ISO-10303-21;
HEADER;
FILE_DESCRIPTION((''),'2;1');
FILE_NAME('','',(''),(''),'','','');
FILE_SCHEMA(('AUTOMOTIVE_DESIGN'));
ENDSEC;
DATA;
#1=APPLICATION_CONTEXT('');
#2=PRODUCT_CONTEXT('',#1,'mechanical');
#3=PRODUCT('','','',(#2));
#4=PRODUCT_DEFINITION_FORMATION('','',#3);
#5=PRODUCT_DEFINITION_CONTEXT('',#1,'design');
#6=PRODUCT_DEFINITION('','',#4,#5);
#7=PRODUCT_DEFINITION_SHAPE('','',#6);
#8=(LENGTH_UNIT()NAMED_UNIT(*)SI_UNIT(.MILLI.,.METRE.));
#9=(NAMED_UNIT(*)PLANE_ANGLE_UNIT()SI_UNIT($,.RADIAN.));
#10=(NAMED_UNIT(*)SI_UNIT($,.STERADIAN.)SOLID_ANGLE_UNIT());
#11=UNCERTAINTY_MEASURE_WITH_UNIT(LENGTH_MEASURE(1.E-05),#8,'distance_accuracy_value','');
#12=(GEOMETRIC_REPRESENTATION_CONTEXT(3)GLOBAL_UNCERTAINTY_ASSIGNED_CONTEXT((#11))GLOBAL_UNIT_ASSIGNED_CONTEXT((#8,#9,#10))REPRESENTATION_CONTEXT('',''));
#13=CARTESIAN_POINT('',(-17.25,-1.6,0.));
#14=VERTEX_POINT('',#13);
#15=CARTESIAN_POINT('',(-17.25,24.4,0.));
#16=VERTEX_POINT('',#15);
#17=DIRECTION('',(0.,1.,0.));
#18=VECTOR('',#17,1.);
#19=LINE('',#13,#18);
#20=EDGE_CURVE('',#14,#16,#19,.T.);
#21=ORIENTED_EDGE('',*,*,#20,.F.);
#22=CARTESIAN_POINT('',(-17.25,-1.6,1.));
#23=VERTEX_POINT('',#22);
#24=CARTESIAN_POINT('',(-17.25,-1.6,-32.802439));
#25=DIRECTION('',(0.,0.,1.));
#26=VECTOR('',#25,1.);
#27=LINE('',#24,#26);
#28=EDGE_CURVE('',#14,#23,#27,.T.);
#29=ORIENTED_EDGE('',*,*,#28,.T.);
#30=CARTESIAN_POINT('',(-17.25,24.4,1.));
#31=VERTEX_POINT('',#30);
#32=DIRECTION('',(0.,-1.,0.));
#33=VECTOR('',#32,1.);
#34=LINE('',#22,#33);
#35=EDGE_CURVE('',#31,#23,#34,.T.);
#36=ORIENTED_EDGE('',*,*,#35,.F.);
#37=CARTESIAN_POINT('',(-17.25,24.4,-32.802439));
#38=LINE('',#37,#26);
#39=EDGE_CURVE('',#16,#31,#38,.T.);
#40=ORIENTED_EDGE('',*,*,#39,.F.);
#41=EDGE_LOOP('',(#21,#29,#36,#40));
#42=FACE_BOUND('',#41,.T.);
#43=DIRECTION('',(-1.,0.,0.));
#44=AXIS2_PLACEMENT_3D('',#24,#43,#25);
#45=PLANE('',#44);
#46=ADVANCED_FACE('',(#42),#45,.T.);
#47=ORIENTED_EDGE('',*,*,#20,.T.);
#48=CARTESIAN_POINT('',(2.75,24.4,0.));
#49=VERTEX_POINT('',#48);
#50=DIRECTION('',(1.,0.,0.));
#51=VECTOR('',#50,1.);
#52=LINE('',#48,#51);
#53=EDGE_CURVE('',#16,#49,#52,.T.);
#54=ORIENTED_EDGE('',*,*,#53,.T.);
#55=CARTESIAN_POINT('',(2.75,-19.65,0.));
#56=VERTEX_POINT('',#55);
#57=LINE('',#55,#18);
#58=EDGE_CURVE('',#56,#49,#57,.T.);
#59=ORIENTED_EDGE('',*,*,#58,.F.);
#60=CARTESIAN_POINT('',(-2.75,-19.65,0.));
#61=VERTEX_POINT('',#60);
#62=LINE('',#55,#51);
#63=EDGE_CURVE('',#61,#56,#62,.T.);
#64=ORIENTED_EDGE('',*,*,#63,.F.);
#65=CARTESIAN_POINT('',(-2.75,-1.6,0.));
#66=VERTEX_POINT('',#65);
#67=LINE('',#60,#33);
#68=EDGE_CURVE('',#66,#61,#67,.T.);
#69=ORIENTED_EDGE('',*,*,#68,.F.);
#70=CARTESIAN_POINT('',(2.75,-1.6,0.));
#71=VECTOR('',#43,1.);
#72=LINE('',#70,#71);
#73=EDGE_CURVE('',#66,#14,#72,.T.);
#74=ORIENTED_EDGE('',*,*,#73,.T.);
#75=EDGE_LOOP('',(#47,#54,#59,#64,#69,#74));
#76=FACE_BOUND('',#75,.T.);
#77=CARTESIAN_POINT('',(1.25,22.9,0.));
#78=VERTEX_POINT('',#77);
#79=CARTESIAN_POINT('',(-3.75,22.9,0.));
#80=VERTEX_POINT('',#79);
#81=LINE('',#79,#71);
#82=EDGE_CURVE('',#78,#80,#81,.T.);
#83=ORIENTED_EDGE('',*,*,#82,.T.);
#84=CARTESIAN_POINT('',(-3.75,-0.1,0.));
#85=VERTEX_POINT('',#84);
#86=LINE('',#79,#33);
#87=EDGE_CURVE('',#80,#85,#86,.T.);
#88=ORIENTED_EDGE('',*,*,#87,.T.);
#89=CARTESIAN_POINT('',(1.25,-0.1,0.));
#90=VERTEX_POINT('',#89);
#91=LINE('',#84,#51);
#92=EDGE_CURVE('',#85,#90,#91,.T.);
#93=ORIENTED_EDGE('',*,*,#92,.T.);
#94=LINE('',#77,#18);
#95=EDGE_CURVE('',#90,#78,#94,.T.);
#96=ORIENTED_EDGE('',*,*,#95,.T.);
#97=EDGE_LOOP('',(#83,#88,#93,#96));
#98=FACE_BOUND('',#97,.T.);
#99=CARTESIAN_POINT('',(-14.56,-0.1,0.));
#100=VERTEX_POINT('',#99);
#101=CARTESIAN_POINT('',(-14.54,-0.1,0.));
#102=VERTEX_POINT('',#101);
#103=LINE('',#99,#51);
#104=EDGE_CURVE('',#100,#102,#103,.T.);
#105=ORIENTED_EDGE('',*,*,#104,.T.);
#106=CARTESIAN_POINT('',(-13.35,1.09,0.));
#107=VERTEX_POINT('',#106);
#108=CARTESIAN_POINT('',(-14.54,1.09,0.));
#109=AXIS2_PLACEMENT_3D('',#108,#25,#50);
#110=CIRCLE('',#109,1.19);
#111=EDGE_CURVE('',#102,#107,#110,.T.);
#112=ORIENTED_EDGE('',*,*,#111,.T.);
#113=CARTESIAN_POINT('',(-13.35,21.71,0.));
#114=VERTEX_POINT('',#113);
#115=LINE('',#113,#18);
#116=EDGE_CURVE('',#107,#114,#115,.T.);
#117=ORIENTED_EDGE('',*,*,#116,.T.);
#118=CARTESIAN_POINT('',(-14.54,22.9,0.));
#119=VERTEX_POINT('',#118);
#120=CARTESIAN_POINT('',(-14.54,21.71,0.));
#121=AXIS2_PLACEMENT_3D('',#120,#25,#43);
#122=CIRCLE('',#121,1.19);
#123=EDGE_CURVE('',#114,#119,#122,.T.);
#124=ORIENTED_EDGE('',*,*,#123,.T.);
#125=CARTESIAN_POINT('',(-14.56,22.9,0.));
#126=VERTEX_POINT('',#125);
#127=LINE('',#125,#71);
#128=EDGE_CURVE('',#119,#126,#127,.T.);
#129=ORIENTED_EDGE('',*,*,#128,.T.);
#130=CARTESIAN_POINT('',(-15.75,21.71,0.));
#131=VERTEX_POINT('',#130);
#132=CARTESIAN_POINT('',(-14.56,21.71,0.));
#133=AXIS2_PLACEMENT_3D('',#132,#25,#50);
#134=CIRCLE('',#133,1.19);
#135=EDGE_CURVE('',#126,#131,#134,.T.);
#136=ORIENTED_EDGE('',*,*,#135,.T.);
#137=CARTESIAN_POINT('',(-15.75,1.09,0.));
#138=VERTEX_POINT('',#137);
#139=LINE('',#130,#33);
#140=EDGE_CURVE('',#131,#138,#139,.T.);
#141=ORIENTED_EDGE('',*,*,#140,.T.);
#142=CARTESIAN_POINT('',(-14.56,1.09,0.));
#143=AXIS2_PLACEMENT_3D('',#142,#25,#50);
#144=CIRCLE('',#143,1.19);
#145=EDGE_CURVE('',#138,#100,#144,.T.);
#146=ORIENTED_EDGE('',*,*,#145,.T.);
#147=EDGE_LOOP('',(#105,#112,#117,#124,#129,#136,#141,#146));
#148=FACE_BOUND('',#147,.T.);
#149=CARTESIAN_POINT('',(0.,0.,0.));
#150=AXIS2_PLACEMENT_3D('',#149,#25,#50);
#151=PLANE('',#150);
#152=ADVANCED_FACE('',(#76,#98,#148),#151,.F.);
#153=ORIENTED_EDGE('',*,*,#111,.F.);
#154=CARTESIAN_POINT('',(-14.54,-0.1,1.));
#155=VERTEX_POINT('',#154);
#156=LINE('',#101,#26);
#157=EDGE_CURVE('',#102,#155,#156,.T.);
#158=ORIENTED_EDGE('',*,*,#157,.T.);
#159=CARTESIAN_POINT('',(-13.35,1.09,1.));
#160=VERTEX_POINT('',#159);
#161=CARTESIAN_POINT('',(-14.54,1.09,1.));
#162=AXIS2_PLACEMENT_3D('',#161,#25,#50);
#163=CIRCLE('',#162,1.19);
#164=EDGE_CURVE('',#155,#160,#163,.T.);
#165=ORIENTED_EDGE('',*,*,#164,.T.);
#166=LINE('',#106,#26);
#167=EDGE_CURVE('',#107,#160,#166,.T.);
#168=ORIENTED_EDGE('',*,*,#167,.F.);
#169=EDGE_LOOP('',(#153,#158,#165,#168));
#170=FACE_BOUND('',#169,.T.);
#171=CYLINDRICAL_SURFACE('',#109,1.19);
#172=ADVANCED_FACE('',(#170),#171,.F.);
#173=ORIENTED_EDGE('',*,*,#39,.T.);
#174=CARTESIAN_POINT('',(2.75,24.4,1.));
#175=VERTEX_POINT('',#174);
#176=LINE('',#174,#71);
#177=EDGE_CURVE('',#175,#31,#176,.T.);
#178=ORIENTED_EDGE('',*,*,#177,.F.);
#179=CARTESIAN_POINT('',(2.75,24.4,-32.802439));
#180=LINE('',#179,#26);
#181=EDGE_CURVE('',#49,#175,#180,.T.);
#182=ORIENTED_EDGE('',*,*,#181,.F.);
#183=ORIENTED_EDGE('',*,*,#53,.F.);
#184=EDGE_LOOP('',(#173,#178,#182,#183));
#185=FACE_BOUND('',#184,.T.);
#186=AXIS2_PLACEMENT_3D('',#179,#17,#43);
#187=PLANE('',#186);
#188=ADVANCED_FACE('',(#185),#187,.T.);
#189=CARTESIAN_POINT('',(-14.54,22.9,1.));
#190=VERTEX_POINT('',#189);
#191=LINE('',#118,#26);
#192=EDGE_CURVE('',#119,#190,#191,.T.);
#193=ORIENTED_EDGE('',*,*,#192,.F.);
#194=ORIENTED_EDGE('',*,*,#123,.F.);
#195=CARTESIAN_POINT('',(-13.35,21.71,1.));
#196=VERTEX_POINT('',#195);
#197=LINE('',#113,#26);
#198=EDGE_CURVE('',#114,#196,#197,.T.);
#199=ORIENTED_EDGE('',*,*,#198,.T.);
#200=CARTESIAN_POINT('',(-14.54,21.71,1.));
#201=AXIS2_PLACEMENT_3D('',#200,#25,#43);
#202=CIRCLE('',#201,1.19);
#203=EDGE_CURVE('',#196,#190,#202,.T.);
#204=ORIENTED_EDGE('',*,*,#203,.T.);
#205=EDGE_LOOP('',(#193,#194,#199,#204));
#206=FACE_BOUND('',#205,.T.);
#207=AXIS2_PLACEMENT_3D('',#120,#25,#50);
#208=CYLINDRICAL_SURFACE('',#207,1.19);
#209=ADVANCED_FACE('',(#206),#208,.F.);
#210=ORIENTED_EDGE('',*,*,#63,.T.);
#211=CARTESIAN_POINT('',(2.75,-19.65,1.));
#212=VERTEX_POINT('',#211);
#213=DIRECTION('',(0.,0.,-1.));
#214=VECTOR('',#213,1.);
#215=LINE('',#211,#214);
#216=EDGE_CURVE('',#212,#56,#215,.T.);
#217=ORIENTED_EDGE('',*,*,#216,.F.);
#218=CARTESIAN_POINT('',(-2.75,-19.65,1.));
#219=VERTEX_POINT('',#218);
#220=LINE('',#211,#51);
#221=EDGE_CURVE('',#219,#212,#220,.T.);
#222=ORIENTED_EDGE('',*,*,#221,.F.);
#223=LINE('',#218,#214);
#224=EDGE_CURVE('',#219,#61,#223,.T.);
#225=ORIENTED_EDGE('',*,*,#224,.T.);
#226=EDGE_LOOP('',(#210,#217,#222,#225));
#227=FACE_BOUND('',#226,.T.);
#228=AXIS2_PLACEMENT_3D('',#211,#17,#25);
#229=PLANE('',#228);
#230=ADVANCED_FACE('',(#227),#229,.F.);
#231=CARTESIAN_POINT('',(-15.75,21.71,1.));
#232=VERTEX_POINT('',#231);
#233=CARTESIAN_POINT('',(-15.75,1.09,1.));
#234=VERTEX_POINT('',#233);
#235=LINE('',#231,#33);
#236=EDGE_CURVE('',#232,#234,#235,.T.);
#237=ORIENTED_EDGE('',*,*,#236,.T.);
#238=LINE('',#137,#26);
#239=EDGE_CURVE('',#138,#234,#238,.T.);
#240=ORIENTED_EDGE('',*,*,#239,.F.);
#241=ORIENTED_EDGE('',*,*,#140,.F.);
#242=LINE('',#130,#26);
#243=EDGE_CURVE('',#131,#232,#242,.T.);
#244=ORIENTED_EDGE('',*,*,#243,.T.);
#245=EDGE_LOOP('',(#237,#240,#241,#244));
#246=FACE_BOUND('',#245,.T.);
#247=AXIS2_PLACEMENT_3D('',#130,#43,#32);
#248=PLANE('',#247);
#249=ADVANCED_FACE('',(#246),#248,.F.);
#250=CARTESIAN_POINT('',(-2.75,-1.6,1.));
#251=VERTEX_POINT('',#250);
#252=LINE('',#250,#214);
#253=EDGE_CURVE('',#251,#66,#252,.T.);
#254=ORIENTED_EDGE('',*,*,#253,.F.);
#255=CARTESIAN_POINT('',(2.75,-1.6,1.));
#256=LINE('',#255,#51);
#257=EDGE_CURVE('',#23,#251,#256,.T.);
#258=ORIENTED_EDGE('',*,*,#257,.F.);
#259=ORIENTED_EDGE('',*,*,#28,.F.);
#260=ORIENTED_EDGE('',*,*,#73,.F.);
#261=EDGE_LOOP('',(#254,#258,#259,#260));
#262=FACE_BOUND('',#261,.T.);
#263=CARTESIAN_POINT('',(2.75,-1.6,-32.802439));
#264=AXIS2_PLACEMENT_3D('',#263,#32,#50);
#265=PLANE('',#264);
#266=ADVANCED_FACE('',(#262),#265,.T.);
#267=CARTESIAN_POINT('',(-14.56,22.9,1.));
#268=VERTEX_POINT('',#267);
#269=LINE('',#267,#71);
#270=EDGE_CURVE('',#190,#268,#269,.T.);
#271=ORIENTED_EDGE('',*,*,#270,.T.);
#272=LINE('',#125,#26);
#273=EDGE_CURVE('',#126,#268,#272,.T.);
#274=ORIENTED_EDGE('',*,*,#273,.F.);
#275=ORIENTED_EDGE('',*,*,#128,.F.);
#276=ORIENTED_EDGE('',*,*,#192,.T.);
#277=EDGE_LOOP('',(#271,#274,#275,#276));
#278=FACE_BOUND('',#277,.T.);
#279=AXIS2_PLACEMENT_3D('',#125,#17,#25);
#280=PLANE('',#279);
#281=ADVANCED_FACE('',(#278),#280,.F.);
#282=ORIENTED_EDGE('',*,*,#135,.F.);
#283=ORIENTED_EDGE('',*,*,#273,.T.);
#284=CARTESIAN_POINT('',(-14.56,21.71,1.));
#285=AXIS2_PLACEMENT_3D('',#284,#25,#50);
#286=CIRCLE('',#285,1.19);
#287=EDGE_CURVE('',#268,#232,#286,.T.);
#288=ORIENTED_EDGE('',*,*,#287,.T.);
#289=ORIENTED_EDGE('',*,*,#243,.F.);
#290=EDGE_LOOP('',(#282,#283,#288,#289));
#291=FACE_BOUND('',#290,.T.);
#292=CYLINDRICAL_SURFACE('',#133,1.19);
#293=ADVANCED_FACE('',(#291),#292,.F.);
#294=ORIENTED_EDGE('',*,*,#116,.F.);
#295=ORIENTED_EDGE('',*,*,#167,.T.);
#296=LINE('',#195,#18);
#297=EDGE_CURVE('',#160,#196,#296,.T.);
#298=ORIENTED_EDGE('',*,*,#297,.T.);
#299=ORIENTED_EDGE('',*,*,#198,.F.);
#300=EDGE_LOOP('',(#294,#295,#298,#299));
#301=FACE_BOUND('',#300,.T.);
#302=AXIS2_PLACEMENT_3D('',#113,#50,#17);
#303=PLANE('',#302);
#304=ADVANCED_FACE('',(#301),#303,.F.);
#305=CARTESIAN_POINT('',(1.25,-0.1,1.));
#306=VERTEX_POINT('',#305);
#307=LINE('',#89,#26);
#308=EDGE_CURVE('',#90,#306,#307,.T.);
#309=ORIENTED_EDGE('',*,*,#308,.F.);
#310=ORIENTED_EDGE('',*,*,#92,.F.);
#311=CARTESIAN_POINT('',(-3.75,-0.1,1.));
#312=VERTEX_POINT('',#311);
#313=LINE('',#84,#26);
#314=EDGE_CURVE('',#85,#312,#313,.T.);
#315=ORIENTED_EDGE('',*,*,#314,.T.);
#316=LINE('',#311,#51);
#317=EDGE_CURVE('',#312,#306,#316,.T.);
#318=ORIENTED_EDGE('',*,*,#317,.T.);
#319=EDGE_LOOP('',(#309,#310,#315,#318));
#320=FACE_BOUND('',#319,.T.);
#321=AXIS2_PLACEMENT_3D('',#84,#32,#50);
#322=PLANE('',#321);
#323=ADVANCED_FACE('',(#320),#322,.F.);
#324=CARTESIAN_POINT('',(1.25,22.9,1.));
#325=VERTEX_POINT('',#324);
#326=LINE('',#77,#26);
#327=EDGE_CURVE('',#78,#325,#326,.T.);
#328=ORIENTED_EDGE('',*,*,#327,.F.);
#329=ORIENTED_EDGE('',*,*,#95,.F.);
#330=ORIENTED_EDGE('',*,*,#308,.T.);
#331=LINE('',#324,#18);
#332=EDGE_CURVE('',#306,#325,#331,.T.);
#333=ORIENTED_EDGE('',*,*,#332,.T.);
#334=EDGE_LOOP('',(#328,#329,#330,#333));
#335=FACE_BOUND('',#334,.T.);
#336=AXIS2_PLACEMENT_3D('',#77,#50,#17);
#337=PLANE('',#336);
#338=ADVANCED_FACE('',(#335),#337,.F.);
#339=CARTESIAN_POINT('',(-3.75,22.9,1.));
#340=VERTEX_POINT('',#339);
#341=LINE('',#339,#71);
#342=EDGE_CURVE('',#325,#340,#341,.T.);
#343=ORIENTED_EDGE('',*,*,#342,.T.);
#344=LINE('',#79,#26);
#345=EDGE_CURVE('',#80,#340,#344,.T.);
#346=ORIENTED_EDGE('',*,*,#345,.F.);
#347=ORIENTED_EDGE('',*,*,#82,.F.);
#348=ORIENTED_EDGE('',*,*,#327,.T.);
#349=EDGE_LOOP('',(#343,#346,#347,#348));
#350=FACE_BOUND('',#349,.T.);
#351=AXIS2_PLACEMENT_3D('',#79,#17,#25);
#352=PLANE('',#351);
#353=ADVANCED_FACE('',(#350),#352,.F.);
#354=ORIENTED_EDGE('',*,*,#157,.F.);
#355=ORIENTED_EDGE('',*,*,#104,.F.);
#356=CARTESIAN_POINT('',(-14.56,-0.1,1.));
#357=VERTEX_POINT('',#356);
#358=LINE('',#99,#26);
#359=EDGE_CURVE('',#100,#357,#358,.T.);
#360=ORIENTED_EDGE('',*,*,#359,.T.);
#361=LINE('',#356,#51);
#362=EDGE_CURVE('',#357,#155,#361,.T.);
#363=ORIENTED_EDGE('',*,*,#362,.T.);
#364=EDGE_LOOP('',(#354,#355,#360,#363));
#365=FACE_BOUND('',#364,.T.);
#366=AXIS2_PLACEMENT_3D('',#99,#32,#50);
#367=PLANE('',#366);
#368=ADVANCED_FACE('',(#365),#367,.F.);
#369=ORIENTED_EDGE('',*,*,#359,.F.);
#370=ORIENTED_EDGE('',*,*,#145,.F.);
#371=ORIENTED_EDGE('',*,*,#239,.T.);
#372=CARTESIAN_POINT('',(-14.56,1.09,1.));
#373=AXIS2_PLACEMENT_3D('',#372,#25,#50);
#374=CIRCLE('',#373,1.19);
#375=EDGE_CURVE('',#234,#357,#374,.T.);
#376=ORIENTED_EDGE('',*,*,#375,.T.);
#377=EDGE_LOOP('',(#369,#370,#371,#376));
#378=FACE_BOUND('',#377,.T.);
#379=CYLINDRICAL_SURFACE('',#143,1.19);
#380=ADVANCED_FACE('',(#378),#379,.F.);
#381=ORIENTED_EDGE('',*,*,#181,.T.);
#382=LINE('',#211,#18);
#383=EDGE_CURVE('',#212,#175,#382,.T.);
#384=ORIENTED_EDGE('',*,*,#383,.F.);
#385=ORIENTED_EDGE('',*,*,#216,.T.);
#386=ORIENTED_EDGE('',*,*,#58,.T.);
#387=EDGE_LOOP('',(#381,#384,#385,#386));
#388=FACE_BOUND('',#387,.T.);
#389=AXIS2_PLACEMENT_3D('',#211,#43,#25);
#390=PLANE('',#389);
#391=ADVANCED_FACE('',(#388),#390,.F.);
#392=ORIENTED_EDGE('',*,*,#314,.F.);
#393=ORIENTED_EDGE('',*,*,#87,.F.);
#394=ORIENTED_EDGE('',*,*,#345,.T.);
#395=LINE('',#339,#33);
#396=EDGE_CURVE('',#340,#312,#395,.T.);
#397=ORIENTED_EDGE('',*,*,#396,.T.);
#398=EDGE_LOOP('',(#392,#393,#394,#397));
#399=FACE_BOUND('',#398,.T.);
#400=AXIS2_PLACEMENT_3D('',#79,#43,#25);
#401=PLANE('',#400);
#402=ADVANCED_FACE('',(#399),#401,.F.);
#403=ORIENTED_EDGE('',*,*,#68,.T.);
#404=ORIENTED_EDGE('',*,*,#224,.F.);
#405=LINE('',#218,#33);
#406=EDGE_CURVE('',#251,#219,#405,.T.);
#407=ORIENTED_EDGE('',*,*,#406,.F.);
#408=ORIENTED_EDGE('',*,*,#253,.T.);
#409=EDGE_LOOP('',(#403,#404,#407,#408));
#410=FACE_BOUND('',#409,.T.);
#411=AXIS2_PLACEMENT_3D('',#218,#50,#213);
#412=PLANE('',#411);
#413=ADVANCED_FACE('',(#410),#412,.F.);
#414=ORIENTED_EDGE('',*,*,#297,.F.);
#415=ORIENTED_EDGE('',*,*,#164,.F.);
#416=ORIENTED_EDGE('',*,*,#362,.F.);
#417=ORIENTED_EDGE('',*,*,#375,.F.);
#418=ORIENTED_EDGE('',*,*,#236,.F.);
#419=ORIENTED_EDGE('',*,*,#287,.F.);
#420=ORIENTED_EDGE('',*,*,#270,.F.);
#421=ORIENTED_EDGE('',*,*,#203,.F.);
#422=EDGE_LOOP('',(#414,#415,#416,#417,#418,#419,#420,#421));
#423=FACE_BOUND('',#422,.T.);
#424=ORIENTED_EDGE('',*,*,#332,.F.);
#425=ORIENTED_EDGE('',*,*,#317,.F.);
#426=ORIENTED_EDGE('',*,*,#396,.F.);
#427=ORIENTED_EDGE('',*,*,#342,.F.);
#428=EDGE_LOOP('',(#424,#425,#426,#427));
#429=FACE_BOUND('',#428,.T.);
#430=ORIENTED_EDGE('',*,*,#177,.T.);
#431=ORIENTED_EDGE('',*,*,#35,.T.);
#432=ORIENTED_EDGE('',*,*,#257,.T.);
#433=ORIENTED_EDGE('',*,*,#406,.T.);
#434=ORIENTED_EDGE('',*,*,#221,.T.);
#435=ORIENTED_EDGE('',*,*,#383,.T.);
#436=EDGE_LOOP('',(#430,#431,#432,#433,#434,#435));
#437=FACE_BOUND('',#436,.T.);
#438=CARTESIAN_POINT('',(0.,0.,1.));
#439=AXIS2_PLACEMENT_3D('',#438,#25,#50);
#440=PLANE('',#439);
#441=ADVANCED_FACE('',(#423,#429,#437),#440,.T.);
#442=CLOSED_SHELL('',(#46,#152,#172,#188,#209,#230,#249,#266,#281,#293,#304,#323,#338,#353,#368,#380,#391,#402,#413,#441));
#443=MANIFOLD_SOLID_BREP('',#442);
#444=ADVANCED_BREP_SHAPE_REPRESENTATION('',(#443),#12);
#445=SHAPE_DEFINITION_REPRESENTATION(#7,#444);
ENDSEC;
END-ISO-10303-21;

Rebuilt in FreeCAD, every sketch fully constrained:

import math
import FreeCAD as App
import Part
import Sketcher

V = App.Vector
Q = App.Units.Quantity

doc = App.newDocument("Part")
body = doc.addObject("PartDesign::Body", "Body")

sketch1 = body.newObject("Sketcher::SketchObject", "Sketch")
sketch1.AttachmentSupport = (doc.getObject("XY_Plane"), [""])
sketch1.MapMode = "FlatFace"
sketch1.addGeometry([
    Part.LineSegment(V(-2.75, 19.65, 0), V(-2.75, -19.65, 0)),
    Part.LineSegment(V(-2.75, -19.65, 0), V(2.75, -19.65, 0)),
    Part.LineSegment(V(2.75, -19.65, 0), V(2.75, 19.65, 0)),
    Part.LineSegment(V(2.75, 19.65, 0), V(-2.75, 19.65, 0)),
], False)
sketch1.addConstraint([
    Sketcher.Constraint("Coincident", 0, 2, 1, 1),
    Sketcher.Constraint("Coincident", 1, 2, 2, 1),
    Sketcher.Constraint("Coincident", 2, 2, 3, 1),
    Sketcher.Constraint("Coincident", 3, 2, 0, 1),
    Sketcher.Constraint("Vertical", 0),
    Sketcher.Constraint("Horizontal", 1),
    Sketcher.Constraint("Vertical", 2),
    Sketcher.Constraint("Horizontal", 3),
    Sketcher.Constraint("Symmetric", 0, 2, 2, 2, -1, 1),
    Sketcher.Constraint("DistanceX", 1, 1, 1, 2, Q("5.5 mm")),
    Sketcher.Constraint("DistanceY", 0, 2, 0, 1, Q("39.3 mm")),
])
pad1 = body.newObject("PartDesign::Pad", "Pad")
pad1.Profile = sketch1
pad1.Length = 1

sketch2 = body.newObject("Sketcher::SketchObject", "Sketch001")
sketch2.AttachmentSupport = (doc.getObject("XY_Plane"), [""])
sketch2.MapMode = "FlatFace"
sketch2.AttachmentOffset = App.Placement(V(0, 0, 1), App.Rotation())
sketch2.addGeometry([
    Part.LineSegment(V(-17.25, 24.4, 0), V(-17.25, -1.6, 0)),
    Part.LineSegment(V(-17.25, -1.6, 0), V(2.75, -1.6, 0)),
    Part.LineSegment(V(2.75, -1.6, 0), V(2.75, 24.4, 0)),
    Part.LineSegment(V(2.75, 24.4, 0), V(-17.25, 24.4, 0)),
], False)
sketch2.addConstraint([
    Sketcher.Constraint("Coincident", 0, 2, 1, 1),
    Sketcher.Constraint("Coincident", 1, 2, 2, 1),
    Sketcher.Constraint("Coincident", 2, 2, 3, 1),
    Sketcher.Constraint("Coincident", 3, 2, 0, 1),
    Sketcher.Constraint("Vertical", 0),
    Sketcher.Constraint("Horizontal", 1),
    Sketcher.Constraint("Vertical", 2),
    Sketcher.Constraint("Horizontal", 3),
    Sketcher.Constraint("DistanceX", 1, 1, 1, 2, Q("20 mm")),
    Sketcher.Constraint("DistanceY", 0, 2, 0, 1, Q("26 mm")),
    Sketcher.Constraint("DistanceY", 0, 2, -1, 1, Q("1.6 mm")),
    Sketcher.Constraint("DistanceX", 0, 2, -1, 1, Q("17.25 mm")),
])
pad2 = body.newObject("PartDesign::Pad", "Pad001")
pad2.Profile = sketch2
pad2.Length = 1
pad2.Reversed = True

sketch3 = body.newObject("Sketcher::SketchObject", "Sketch002")
sketch3.AttachmentSupport = (doc.getObject("XY_Plane"), [""])
sketch3.MapMode = "FlatFace"
sketch3.AttachmentOffset = App.Placement(V(0, 0, 1), App.Rotation())
sketch3.addGeometry([
    Part.LineSegment(V(-14.54, 22.9, 0), V(-14.56, 22.9, 0)),
    Part.ArcOfCircle(Part.Circle(V(-14.56, 21.71, 0), V(0, 0, 1), 1.19), math.radians(90), math.radians(180)),
    Part.LineSegment(V(-15.75, 21.71, 0), V(-15.75, 1.09, 0)),
    Part.ArcOfCircle(Part.Circle(V(-14.56, 1.09, 0), V(0, 0, 1), 1.19), math.radians(180), math.radians(270)),
    Part.LineSegment(V(-14.56, -0.1, 0), V(-14.54, -0.1, 0)),
    Part.ArcOfCircle(Part.Circle(V(-14.54, 1.09, 0), V(0, 0, 1), 1.19), math.radians(-90), math.radians(0)),
    Part.LineSegment(V(-13.35, 1.09, 0), V(-13.35, 21.71, 0)),
    Part.ArcOfCircle(Part.Circle(V(-14.54, 21.71, 0), V(0, 0, 1), 1.19), math.radians(0), math.radians(90)),
], False)
sketch3.addConstraint([
    Sketcher.Constraint("Tangent", 0, 2, 1, 1),
    Sketcher.Constraint("Tangent", 1, 2, 2, 1),
    Sketcher.Constraint("Tangent", 2, 2, 3, 1),
    Sketcher.Constraint("Tangent", 3, 2, 4, 1),
    Sketcher.Constraint("Tangent", 4, 2, 5, 1),
    Sketcher.Constraint("Tangent", 5, 2, 6, 1),
    Sketcher.Constraint("Tangent", 6, 2, 7, 1),
    Sketcher.Constraint("Tangent", 7, 2, 0, 1),
    Sketcher.Constraint("Horizontal", 0),
    Sketcher.Constraint("Vertical", 2),
    Sketcher.Constraint("Horizontal", 4),
    Sketcher.Constraint("Vertical", 6),
    Sketcher.Constraint("Equal", 1, 3),
    Sketcher.Constraint("Equal", 3, 5),
    Sketcher.Constraint("Equal", 5, 7),
    Sketcher.Constraint("Radius", 1, Q("1.19 mm")),
    Sketcher.Constraint("DistanceX", 0, 2, 0, 1, Q("0.02 mm")),
    Sketcher.Constraint("DistanceY", 2, 2, 2, 1, Q("20.62 mm")),
    Sketcher.Constraint("DistanceY", -1, 1, 0, 2, Q("22.9 mm")),
    Sketcher.Constraint("DistanceX", 1, 3, -1, 1, Q("14.56 mm")),
])
pocket1 = body.newObject("PartDesign::Pocket", "Pocket")
pocket1.Profile = sketch3
pocket1.Length = 1

sketch4 = body.newObject("Sketcher::SketchObject", "Sketch003")
sketch4.AttachmentSupport = (doc.getObject("XY_Plane"), [""])
sketch4.MapMode = "FlatFace"
sketch4.AttachmentOffset = App.Placement(V(0, 0, 1), App.Rotation())
sketch4.addGeometry([
    Part.LineSegment(V(-3.75, 22.9, 0), V(-3.75, -0.1, 0)),
    Part.LineSegment(V(-3.75, -0.1, 0), V(1.25, -0.1, 0)),
    Part.LineSegment(V(1.25, -0.1, 0), V(1.25, 22.9, 0)),
    Part.LineSegment(V(1.25, 22.9, 0), V(-3.75, 22.9, 0)),
], False)
sketch4.addConstraint([
    Sketcher.Constraint("Coincident", 0, 2, 1, 1),
    Sketcher.Constraint("Coincident", 1, 2, 2, 1),
    Sketcher.Constraint("Coincident", 2, 2, 3, 1),
    Sketcher.Constraint("Coincident", 3, 2, 0, 1),
    Sketcher.Constraint("Vertical", 0),
    Sketcher.Constraint("Horizontal", 1),
    Sketcher.Constraint("Vertical", 2),
    Sketcher.Constraint("Horizontal", 3),
    Sketcher.Constraint("DistanceX", 1, 1, 1, 2, Q("5 mm")),
    Sketcher.Constraint("DistanceY", 0, 2, 0, 1, Q("23 mm")),
    Sketcher.Constraint("DistanceY", 0, 2, -1, 1, Q("0.1 mm")),
    Sketcher.Constraint("DistanceX", 0, 2, -1, 1, Q("3.75 mm")),
])
pocket2 = body.newObject("PartDesign::Pocket", "Pocket001")
pocket2.Profile = sketch4
pocket2.Length = 1

doc.recompute()
